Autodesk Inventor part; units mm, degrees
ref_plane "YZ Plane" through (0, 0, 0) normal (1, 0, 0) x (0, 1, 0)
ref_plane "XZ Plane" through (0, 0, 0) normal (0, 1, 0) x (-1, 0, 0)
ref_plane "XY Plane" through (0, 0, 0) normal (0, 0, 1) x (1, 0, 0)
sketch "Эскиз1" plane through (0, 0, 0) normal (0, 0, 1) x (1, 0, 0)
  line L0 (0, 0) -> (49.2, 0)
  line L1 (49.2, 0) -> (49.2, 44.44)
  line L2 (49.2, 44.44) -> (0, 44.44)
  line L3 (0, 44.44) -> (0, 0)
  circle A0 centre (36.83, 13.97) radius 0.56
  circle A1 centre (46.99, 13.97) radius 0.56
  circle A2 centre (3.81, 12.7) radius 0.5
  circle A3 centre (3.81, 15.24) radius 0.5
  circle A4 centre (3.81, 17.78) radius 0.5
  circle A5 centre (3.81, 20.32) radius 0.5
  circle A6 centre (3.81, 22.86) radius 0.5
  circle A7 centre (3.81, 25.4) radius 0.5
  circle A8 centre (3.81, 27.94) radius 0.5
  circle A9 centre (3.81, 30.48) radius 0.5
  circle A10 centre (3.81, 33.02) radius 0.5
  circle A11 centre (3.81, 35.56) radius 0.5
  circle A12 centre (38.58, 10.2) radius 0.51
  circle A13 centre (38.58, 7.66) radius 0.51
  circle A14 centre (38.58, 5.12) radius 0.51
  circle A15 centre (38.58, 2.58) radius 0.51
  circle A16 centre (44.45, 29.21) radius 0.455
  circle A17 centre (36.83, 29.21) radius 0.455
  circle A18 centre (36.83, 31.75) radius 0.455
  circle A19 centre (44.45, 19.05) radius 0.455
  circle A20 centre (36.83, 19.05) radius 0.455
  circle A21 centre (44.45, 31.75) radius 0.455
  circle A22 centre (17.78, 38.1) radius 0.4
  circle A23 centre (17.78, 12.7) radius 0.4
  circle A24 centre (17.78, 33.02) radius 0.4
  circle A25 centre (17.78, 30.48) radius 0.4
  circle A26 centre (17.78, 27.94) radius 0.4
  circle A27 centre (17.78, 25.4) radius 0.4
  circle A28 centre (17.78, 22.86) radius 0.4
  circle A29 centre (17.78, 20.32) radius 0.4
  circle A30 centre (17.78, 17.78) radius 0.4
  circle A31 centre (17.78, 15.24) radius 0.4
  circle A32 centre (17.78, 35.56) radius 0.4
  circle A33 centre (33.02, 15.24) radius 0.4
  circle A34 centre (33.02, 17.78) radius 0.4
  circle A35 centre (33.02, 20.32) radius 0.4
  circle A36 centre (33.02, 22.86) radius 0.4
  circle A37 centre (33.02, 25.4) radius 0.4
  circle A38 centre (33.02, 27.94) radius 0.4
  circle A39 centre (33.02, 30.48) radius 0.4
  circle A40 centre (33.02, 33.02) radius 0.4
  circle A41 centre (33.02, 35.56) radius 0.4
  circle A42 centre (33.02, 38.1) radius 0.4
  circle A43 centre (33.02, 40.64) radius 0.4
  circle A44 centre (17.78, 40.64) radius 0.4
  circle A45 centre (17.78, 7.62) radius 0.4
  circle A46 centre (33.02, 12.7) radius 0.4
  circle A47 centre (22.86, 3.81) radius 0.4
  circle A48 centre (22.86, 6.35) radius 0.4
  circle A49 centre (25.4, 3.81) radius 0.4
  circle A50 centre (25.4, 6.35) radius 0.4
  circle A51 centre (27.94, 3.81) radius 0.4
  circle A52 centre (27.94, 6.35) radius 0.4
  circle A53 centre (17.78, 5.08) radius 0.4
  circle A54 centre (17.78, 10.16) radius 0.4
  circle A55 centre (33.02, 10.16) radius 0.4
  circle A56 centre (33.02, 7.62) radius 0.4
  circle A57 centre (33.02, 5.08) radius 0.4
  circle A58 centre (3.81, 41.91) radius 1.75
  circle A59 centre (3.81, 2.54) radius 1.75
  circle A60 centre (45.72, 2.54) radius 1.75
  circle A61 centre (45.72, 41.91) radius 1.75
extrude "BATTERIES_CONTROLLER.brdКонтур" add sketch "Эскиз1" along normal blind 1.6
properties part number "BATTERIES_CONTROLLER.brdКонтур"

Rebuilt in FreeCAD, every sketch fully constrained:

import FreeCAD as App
import Part
import Sketcher

V = App.Vector
Q = App.Units.Quantity

doc = App.newDocument("Part")
body = doc.addObject("PartDesign::Body", "Body")

# Sketch on XY plane
sketch1 = body.newObject("Sketcher::SketchObject", "Sketch")
sketch1.AttachmentSupport = (doc.getObject("XY_Plane"), [""])
sketch1.MapMode = "FlatFace"
sketch1.addGeometry(Part.LineSegment(V(0, 44.44, 0), V(0, 0, 0)), False)
sketch1.addGeometry(Part.LineSegment(V(0, 0, 0), V(49.2, 0, 0)), False)
sketch1.addGeometry(Part.LineSegment(V(49.2, 0, 0), V(49.2, 44.44, 0)), False)
sketch1.addGeometry(Part.LineSegment(V(49.2, 44.44, 0), V(0, 44.44, 0)), False)
sketch1.addGeometry(Part.Circle(V(3.81, 2.54, 0), V(0, 0, 1), 1.75), False)
sketch1.addGeometry(Part.Circle(V(17.78, 5.08, 0), V(0, 0, 1), 0.4), False)
sketch1.addGeometry(Part.Circle(V(22.86, 3.81, 0), V(0, 0, 1), 0.4), False)
sketch1.addGeometry(Part.Circle(V(17.78, 7.62, 0), V(0, 0, 1), 0.4), False)
sketch1.addGeometry(Part.Circle(V(17.78, 10.16, 0), V(0, 0, 1), 0.4), False)
sketch1.addGeometry(Part.Circle(V(22.86, 6.35, 0), V(0, 0, 1), 0.4), False)
sketch1.addGeometry(Part.Circle(V(3.81, 12.7, 0), V(0, 0, 1), 0.5), False)
sketch1.addGeometry(Part.Circle(V(3.81, 15.24, 0), V(0, 0, 1), 0.5), False)
sketch1.addGeometry(Part.Circle(V(3.81, 17.78, 0), V(0, 0, 1), 0.5), False)
sketch1.addGeometry(Part.Circle(V(3.81, 20.32, 0), V(0, 0, 1), 0.5), False)
sketch1.addGeometry(Part.Circle(V(17.78, 12.7, 0), V(0, 0, 1), 0.4), False)
sketch1.addGeometry(Part.Circle(V(17.78, 15.24, 0), V(0, 0, 1), 0.4), False)
sketch1.addGeometry(Part.Circle(V(17.78, 17.78, 0), V(0, 0, 1), 0.4), False)
sketch1.addGeometry(Part.Circle(V(17.78, 20.32, 0), V(0, 0, 1), 0.4), False)
sketch1.addGeometry(Part.Circle(V(25.4, 3.81, 0), V(0, 0, 1), 0.4), False)
sketch1.addGeometry(Part.Circle(V(27.94, 3.81, 0), V(0, 0, 1), 0.4), False)
sketch1.addGeometry(Part.Circle(V(33.02, 5.08, 0), V(0, 0, 1), 0.4), False)
sketch1.addGeometry(Part.Circle(V(25.4, 6.35, 0), V(0, 0, 1), 0.4), False)
sketch1.addGeometry(Part.Circle(V(27.94, 6.35, 0), V(0, 0, 1), 0.4), False)
sketch1.addGeometry(Part.Circle(V(33.02, 7.62, 0), V(0, 0, 1), 0.4), False)
sketch1.addGeometry(Part.Circle(V(33.02, 10.16, 0), V(0, 0, 1), 0.4), False)
sketch1.addGeometry(Part.Circle(V(38.58, 2.58, 0), V(0, 0, 1), 0.51), False)
sketch1.addGeometry(Part.Circle(V(38.58, 5.12, 0), V(0, 0, 1), 0.51), False)
sketch1.addGeometry(Part.Circle(V(45.72, 2.54, 0), V(0, 0, 1), 1.75), False)
sketch1.addGeometry(Part.Circle(V(38.58, 7.66, 0), V(0, 0, 1), 0.51), False)
sketch1.addGeometry(Part.Circle(V(38.58, 10.2, 0), V(0, 0, 1), 0.51), False)
sketch1.addGeometry(Part.Circle(V(33.02, 12.7, 0), V(0, 0, 1), 0.4), False)
sketch1.addGeometry(Part.Circle(V(33.02, 15.24, 0), V(0, 0, 1), 0.4), False)
sketch1.addGeometry(Part.Circle(V(36.83, 13.97, 0), V(0, 0, 1), 0.56), False)
sketch1.addGeometry(Part.Circle(V(33.02, 17.78, 0), V(0, 0, 1), 0.4), False)
sketch1.addGeometry(Part.Circle(V(36.83, 19.05, 0), V(0, 0, 1), 0.46), False)
sketch1.addGeometry(Part.Circle(V(33.02, 20.32, 0), V(0, 0, 1), 0.4), False)
sketch1.addGeometry(Part.Circle(V(46.99, 13.97, 0), V(0, 0, 1), 0.56), False)
sketch1.addGeometry(Part.Circle(V(44.45, 19.05, 0), V(0, 0, 1), 0.46), False)
sketch1.addGeometry(Part.Circle(V(3.81, 22.86, 0), V(0, 0, 1), 0.5), False)
sketch1.addGeometry(Part.Circle(V(3.81, 25.4, 0), V(0, 0, 1), 0.5), False)
sketch1.addGeometry(Part.Circle(V(3.81, 27.94, 0), V(0, 0, 1), 0.5), False)
sketch1.addGeometry(Part.Circle(V(3.81, 30.48, 0), V(0, 0, 1), 0.5), False)
sketch1.addGeometry(Part.Circle(V(3.81, 33.02, 0), V(0, 0, 1), 0.5), False)
sketch1.addGeometry(Part.Circle(V(17.78, 22.86, 0), V(0, 0, 1), 0.4), False)
sketch1.addGeometry(Part.Circle(V(17.78, 25.4, 0), V(0, 0, 1), 0.4), False)
sketch1.addGeometry(Part.Circle(V(17.78, 27.94, 0), V(0, 0, 1), 0.4), False)
sketch1.addGeometry(Part.Circle(V(17.78, 30.48, 0), V(0, 0, 1), 0.4), False)
sketch1.addGeometry(Part.Circle(V(17.78, 33.02, 0), V(0, 0, 1), 0.4), False)
sketch1.addGeometry(Part.Circle(V(3.81, 35.56, 0), V(0, 0, 1), 0.5), False)
sketch1.addGeometry(Part.Circle(V(3.81, 41.91, 0), V(0, 0, 1), 1.75), False)
sketch1.addGeometry(Part.Circle(V(17.78, 35.56, 0), V(0, 0, 1), 0.4), False)
sketch1.addGeometry(Part.Circle(V(17.78, 38.1, 0), V(0, 0, 1), 0.4), False)
sketch1.addGeometry(Part.Circle(V(17.78, 40.64, 0), V(0, 0, 1), 0.4), False)
sketch1.addGeometry(Part.Circle(V(33.02, 22.86, 0), V(0, 0, 1), 0.4), False)
sketch1.addGeometry(Part.Circle(V(33.02, 25.4, 0), V(0, 0, 1), 0.4), False)
sketch1.addGeometry(Part.Circle(V(33.02, 27.94, 0), V(0, 0, 1), 0.4), False)
sketch1.addGeometry(Part.Circle(V(33.02, 30.48, 0), V(0, 0, 1), 0.4), False)
sketch1.addGeometry(Part.Circle(V(36.83, 29.21, 0), V(0, 0, 1), 0.46), False)
sketch1.addGeometry(Part.Circle(V(33.02, 33.02, 0), V(0, 0, 1), 0.4), False)
sketch1.addGeometry(Part.Circle(V(36.83, 31.75, 0), V(0, 0, 1), 0.46), False)
sketch1.addGeometry(Part.Circle(V(44.45, 29.21, 0), V(0, 0, 1), 0.46), False)
sketch1.addGeometry(Part.Circle(V(44.45, 31.75, 0), V(0, 0, 1), 0.46), False)
sketch1.addGeometry(Part.Circle(V(33.02, 35.56, 0), V(0, 0, 1), 0.4), False)
sketch1.addGeometry(Part.Circle(V(33.02, 38.1, 0), V(0, 0, 1), 0.4), False)
sketch1.addGeometry(Part.Circle(V(33.02, 40.64, 0), V(0, 0, 1), 0.4), False)
sketch1.addGeometry(Part.Circle(V(45.72, 41.91, 0), V(0, 0, 1), 1.75), False)
sketch1.addConstraint(Sketcher.Constraint("Coincident", 0, 2, 1, 1))
sketch1.addConstraint(Sketcher.Constraint("Coincident", 1, 2, 2, 1))
sketch1.addConstraint(Sketcher.Constraint("Coincident", 2, 2, 3, 1))
sketch1.addConstraint(Sketcher.Constraint("Coincident", 3, 2, 0, 1))
sketch1.addConstraint(Sketcher.Constraint("Vertical", 0))
sketch1.addConstraint(Sketcher.Constraint("Horizontal", 1))
sketch1.addConstraint(Sketcher.Constraint("Vertical", 2))
sketch1.addConstraint(Sketcher.Constraint("Horizontal", 3))
sketch1.addConstraint(Sketcher.Constraint("Coincident", 0, 2, -1, 1))
sketch1.addConstraint(Sketcher.Constraint("Equal", 5, 6))
sketch1.addConstraint(Sketcher.Constraint("Equal", 6, 7))
sketch1.addConstraint(Sketcher.Constraint("Equal", 7, 8))
sketch1.addConstraint(Sketcher.Constraint("Equal", 8, 9))
sketch1.addConstraint(Sketcher.Constraint("Equal", 10, 11))
sketch1.addConstraint(Sketcher.Constraint("Equal", 11, 12))
sketch1.addConstraint(Sketcher.Constraint("Equal", 12, 13))
sketch1.addConstraint(Sketcher.Constraint("Equal", 9, 14))
sketch1.addConstraint(Sketcher.Constraint("Equal", 14, 15))
sketch1.addConstraint(Sketcher.Constraint("Equal", 15, 16))
sketch1.addConstraint(Sketcher.Constraint("Equal", 16, 17))
sketch1.addConstraint(Sketcher.Constraint("Equal", 17, 18))
sketch1.addConstraint(Sketcher.Constraint("Equal", 18, 19))
sketch1.addConstraint(Sketcher.Constraint("Equal", 19, 20))
sketch1.addConstraint(Sketcher.Constraint("Equal", 20, 21))
sketch1.addConstraint(Sketcher.Constraint("Equal", 21, 22))
sketch1.addConstraint(Sketcher.Constraint("Equal", 22, 23))
sketch1.addConstraint(Sketcher.Constraint("Equal", 23, 24))
sketch1.addConstraint(Sketcher.Constraint("Equal", 25, 26))
sketch1.addConstraint(Sketcher.Constraint("Equal", 4, 27))
sketch1.addConstraint(Sketcher.Constraint("Equal", 26, 28))
sketch1.addConstraint(Sketcher.Constraint("Equal", 28, 29))
sketch1.addConstraint(Sketcher.Constraint("Equal", 24, 30))
sketch1.addConstraint(Sketcher.Constraint("Equal", 30, 31))
sketch1.addConstraint(Sketcher.Constraint("Equal", 31, 33))
sketch1.addConstraint(Sketcher.Constraint("Equal", 33, 35))
sketch1.addConstraint(Sketcher.Constraint("Equal", 32, 36))
sketch1.addConstraint(Sketcher.Constraint("Equal", 34, 37))
sketch1.addConstraint(Sketcher.Constraint("Equal", 13, 38))
sketch1.addConstraint(Sketcher.Constraint("Equal", 38, 39))
sketch1.addConstraint(Sketcher.Constraint("Equal", 39, 40))
sketch1.addConstraint(Sketcher.Constraint("Equal", 40, 41))
sketch1.addConstraint(Sketcher.Constraint("Equal", 41, 42))
sketch1.addConstraint(Sketcher.Constraint("Equal", 35, 43))
sketch1.addConstraint(Sketcher.Constraint("Equal", 43, 44))
sketch1.addConstraint(Sketcher.Constraint("Equal", 44, 45))
sketch1.addConstraint(Sketcher.Constraint("Equal", 45, 46))
sketch1.addConstraint(Sketcher.Constraint("Equal", 46, 47))
sketch1.addConstraint(Sketcher.Constraint("Equal", 42, 48))
sketch1.addConstraint(Sketcher.Constraint("Equal", 27, 49))
sketch1.addConstraint(Sketcher.Constraint("Equal", 47, 50))
sketch1.addConstraint(Sketcher.Constraint("Equal", 50, 51))
sketch1.addConstraint(Sketcher.Constraint("Equal", 51, 52))
sketch1.addConstraint(Sketcher.Constraint("Equal", 52, 53))
sketch1.addConstraint(Sketcher.Constraint("Equal", 53, 54))
sketch1.addConstraint(Sketcher.Constraint("Equal", 54, 55))
sketch1.addConstraint(Sketcher.Constraint("Equal", 55, 56))
sketch1.addConstraint(Sketcher.Constraint("Equal", 37, 57))
sketch1.addConstraint(Sketcher.Constraint("Equal", 56, 58))
sketch1.addConstraint(Sketcher.Constraint("Equal", 57, 59))
sketch1.addConstraint(Sketcher.Constraint("Equal", 59, 60))
sketch1.addConstraint(Sketcher.Constraint("Equal", 60, 61))
sketch1.addConstraint(Sketcher.Constraint("Equal", 58, 62))
sketch1.addConstraint(Sketcher.Constraint("Equal", 62, 63))
sketch1.addConstraint(Sketcher.Constraint("Equal", 63, 64))
sketch1.addConstraint(Sketcher.Constraint("Equal", 49, 65))
sketch1.addConstraint(Sketcher.Constraint("Horizontal", 10, 3, 14, 3))
sketch1.addConstraint(Sketcher.Constraint("Horizontal", 11, 3, 15, 3))
sketch1.addConstraint(Sketcher.Constraint("Horizontal", 12, 3, 16, 3))
sketch1.addConstraint(Sketcher.Constraint("Horizontal", 13, 3, 17, 3))
sketch1.addConstraint(Sketcher.Constraint("Horizontal", 6, 3, 18, 3))
sketch1.addConstraint(Sketcher.Constraint("Horizontal", 18, 3, 19, 3))
sketch1.addConstraint(Sketcher.Constraint("Horizontal", 5, 3, 20, 3))
sketch1.addConstraint(Sketcher.Constraint("Horizontal", 9, 3, 21, 3))
sketch1.addConstraint(Sketcher.Constraint("Horizontal", 21, 3, 22, 3))
sketch1.addConstraint(Sketcher.Constraint("Horizontal", 7, 3, 23, 3))
sketch1.addConstraint(Sketcher.Constraint("Horizontal", 8, 3, 24, 3))
sketch1.addConstraint(Sketcher.Constraint("Horizontal", 4, 3, 27, 3))
sketch1.addConstraint(Sketcher.Constraint("Horizontal", 14, 3, 30, 3))
sketch1.addConstraint(Sketcher.Constraint("Horizontal", 15, 3, 31, 3))
sketch1.addConstraint(Sketcher.Constraint("Horizontal", 16, 3, 33, 3))
sketch1.addConstraint(Sketcher.Constraint("Horizontal", 17, 3, 35, 3))
sketch1.addConstraint(Sketcher.Constraint("Horizontal", 32, 3, 36, 3))
sketch1.addConstraint(Sketcher.Constraint("Horizontal", 34, 3, 37, 3))
sketch1.addConstraint(Sketcher.Constraint("Horizontal", 38, 3, 43, 3))
sketch1.addConstraint(Sketcher.Constraint("Horizontal", 39, 3, 44, 3))
sketch1.addConstraint(Sketcher.Constraint("Horizontal", 40, 3, 45, 3))
sketch1.addConstraint(Sketcher.Constraint("Horizontal", 41, 3, 46, 3))
sketch1.addConstraint(Sketcher.Constraint("Horizontal", 42, 3, 47, 3))
sketch1.addConstraint(Sketcher.Constraint("Horizontal", 48, 3, 50, 3))
sketch1.addConstraint(Sketcher.Constraint("Horizontal", 43, 3, 53, 3))
sketch1.addConstraint(Sketcher.Constraint("Horizontal", 44, 3, 54, 3))
sketch1.addConstraint(Sketcher.Constraint("Horizontal", 45, 3, 55, 3))
sketch1.addConstraint(Sketcher.Constraint("Horizontal", 46, 3, 56, 3))
sketch1.addConstraint(Sketcher.Constraint("Horizontal", 47, 3, 58, 3))
sketch1.addConstraint(Sketcher.Constraint("Horizontal", 57, 3, 60, 3))
sketch1.addConstraint(Sketcher.Constraint("Horizontal", 59, 3, 61, 3))
sketch1.addConstraint(Sketcher.Constraint("Horizontal", 50, 3, 62, 3))
sketch1.addConstraint(Sketcher.Constraint("Horizontal", 51, 3, 63, 3))
sketch1.addConstraint(Sketcher.Constraint("Horizontal", 52, 3, 64, 3))
sketch1.addConstraint(Sketcher.Constraint("Horizontal", 49, 3, 65, 3))
sketch1.addConstraint(Sketcher.Constraint("Vertical", 5, 3, 7, 3))
sketch1.addConstraint(Sketcher.Constraint("Vertical", 7, 3, 8, 3))
sketch1.addConstraint(Sketcher.Constraint("Vertical", 6, 3, 9, 3))
sketch1.addConstraint(Sketcher.Constraint("Vertical", 4, 3, 10, 3))
sketch1.addConstraint(Sketcher.Constraint("Vertical", 10, 3, 11, 3))
sketch1.addConstraint(Sketcher.Constraint("Vertical", 11, 3, 12, 3))
sketch1.addConstraint(Sketcher.Constraint("Vertical", 12, 3, 13, 3))
sketch1.addConstraint(Sketcher.Constraint("Vertical", 8, 3, 14, 3))
sketch1.addConstraint(Sketcher.Constraint("Vertical", 14, 3, 15, 3))
sketch1.addConstraint(Sketcher.Constraint("Vertical", 15, 3, 16, 3))
sketch1.addConstraint(Sketcher.Constraint("Vertical", 16, 3, 17, 3))
sketch1.addConstraint(Sketcher.Constraint("Vertical", 18, 3, 21, 3))
sketch1.addConstraint(Sketcher.Constraint("Vertical", 19, 3, 22, 3))
sketch1.addConstraint(Sketcher.Constraint("Vertical", 20, 3, 23, 3))
sketch1.addConstraint(Sketcher.Constraint("Vertical", 23, 3, 24, 3))
sketch1.addConstraint(Sketcher.Constraint("Vertical", 25, 3, 26, 3))
sketch1.addConstraint(Sketcher.Constraint("Vertical", 26, 3, 28, 3))
sketch1.addConstraint(Sketcher.Constraint("Vertical", 28, 3, 29, 3))
sketch1.addConstraint(Sketcher.Constraint("Vertical", 24, 3, 30, 3))
sketch1.addConstraint(Sketcher.Constraint("Vertical", 30, 3, 31, 3))
sketch1.addConstraint(Sketcher.Constraint("Vertical", 31, 3, 33, 3))
sketch1.addConstraint(Sketcher.Constraint("Vertical", 32, 3, 34, 3))
sketch1.addConstraint(Sketcher.Constraint("Vertical", 33, 3, 35, 3))
sketch1.addConstraint(Sketcher.Constraint("Vertical", 13, 3, 38, 3))
sketch1.addConstraint(Sketcher.Constraint("Vertical", 38, 3, 39, 3))
sketch1.addConstraint(Sketcher.Constraint("Vertical", 39, 3, 40, 3))
sketch1.addConstraint(Sketcher.Constraint("Vertical", 40, 3, 41, 3))
sketch1.addConstraint(Sketcher.Constraint("Vertical", 41, 3, 42, 3))
sketch1.addConstraint(Sketcher.Constraint("Vertical", 17, 3, 43, 3))
sketch1.addConstraint(Sketcher.Constraint("Vertical", 43, 3, 44, 3))
sketch1.addConstraint(Sketcher.Constraint("Vertical", 44, 3, 45, 3))
sketch1.addConstraint(Sketcher.Constraint("Vertical", 45, 3, 46, 3))
sketch1.addConstraint(Sketcher.Constraint("Vertical", 46, 3, 47, 3))
sketch1.addConstraint(Sketcher.Constraint("Vertical", 42, 3, 48, 3))
sketch1.addConstraint(Sketcher.Constraint("Vertical", 48, 3, 49, 3))
sketch1.addConstraint(Sketcher.Constraint("Vertical", 47, 3, 50, 3))
sketch1.addConstraint(Sketcher.Constraint("Vertical", 50, 3, 51, 3))
sketch1.addConstraint(Sketcher.Constraint("Vertical", 51, 3, 52, 3))
sketch1.addConstraint(Sketcher.Constraint("Vertical", 35, 3, 53, 3))
sketch1.addConstraint(Sketcher.Constraint("Vertical", 53, 3, 54, 3))
sketch1.addConstraint(Sketcher.Constraint("Vertical", 54, 3, 55, 3))
sketch1.addConstraint(Sketcher.Constraint("Vertical", 55, 3, 56, 3))
sketch1.addConstraint(Sketcher.Constraint("Vertical", 34, 3, 57, 3))
sketch1.addConstraint(Sketcher.Constraint("Vertical", 56, 3, 58, 3))
sketch1.addConstraint(Sketcher.Constraint("Vertical", 57, 3, 59, 3))
sketch1.addConstraint(Sketcher.Constraint("Vertical", 37, 3, 60, 3))
sketch1.addConstraint(Sketcher.Constraint("Vertical", 60, 3, 61, 3))
sketch1.addConstraint(Sketcher.Constraint("Vertical", 58, 3, 62, 3))
sketch1.addConstraint(Sketcher.Constraint("Vertical", 62, 3, 63, 3))
sketch1.addConstraint(Sketcher.Constraint("Vertical", 63, 3, 64, 3))
sketch1.addConstraint(Sketcher.Constraint("Vertical", 27, 3, 65, 3))
sketch1.addConstraint(Sketcher.Constraint("DistanceX", -1, 1, 18, 3, Q("1 in")))
sketch1.addConstraint(Sketcher.Constraint("DistanceY", -1, 1, 39, 3, Q("1 in")))
sketch1.addConstraint(Sketcher.Constraint("Diameter", 4, Q("0.1378 in")))
sketch1.addConstraint(Sketcher.Constraint("Diameter", 5, Q("0.0315 in")))
sketch1.addConstraint(Sketcher.Constraint("Diameter", 32, Q("0.0441 in")))
sketch1.addConstraint(Sketcher.Constraint("DistanceY", -1, 1, 4, 3, Q("0.1 in")))
sketch1.addConstraint(Sketcher.Constraint("DistanceX", -1, 1, 5, 3, Q("0.7 in")))
sketch1.addConstraint(Sketcher.Constraint("DistanceY", -1, 1, 5, 3, Q("0.2 in")))
sketch1.addConstraint(Sketcher.Constraint("DistanceX", -1, 1, 6, 3, Q("0.9 in")))
sketch1.addConstraint(Sketcher.Constraint("DistanceY", -1, 1, 7, 3, Q("0.3 in")))
sketch1.addConstraint(Sketcher.Constraint("DistanceY", -1, 1, 8, 3, Q("0.4 in")))
sketch1.addConstraint(Sketcher.Constraint("DistanceY", -1, 1, 10, 3, Q("0.5 in")))
sketch1.addConstraint(Sketcher.Constraint("DistanceY", -1, 1, 11, 3, Q("0.6 in")))
sketch1.addConstraint(Sketcher.Constraint("DistanceY", -1, 1, 12, 3, Q("0.7 in")))
sketch1.addConstraint(Sketcher.Constraint("DistanceY", -1, 1, 13, 3, Q("0.8 in")))
sketch1.addConstraint(Sketcher.Constraint("DistanceX", -1, 1, 19, 3, Q("1.1 in")))
sketch1.addConstraint(Sketcher.Constraint("DistanceX", -1, 1, 20, 3, Q("1.3 in")))
sketch1.addConstraint(Sketcher.Constraint("DistanceX", -1, 1, 27, 3, Q("1.8 in")))
sketch1.addConstraint(Sketcher.Constraint("DistanceY", -1, 1, 38, 3, Q("0.9 in")))
sketch1.addConstraint(Sketcher.Constraint("DistanceY", -1, 1, 40, 3, Q("1.1 in")))
sketch1.addConstraint(Sketcher.Constraint("DistanceY", -1, 1, 41, 3, Q("1.2 in")))
sketch1.addConstraint(Sketcher.Constraint("DistanceY", -1, 1, 42, 3, Q("1.3 in")))
sketch1.addConstraint(Sketcher.Constraint("DistanceY", -1, 1, 48, 3, Q("1.4 in")))
sketch1.addConstraint(Sketcher.Constraint("DistanceY", -1, 1, 51, 3, Q("1.5 in")))
sketch1.addConstraint(Sketcher.Constraint("DistanceY", -1, 1, 52, 3, Q("1.6 in")))
sketch1.addConstraint(Sketcher.Constraint("Diameter", 10, 1.0))
sketch1.addConstraint(Sketcher.Constraint("Diameter", 25, 1.02))
sketch1.addConstraint(Sketcher.Constraint("Diameter", 34, 0.91))
sketch1.addConstraint(Sketcher.Constraint("DistanceX", 1, 1, 1, 2, Q("1.937 in")))
sketch1.addConstraint(Sketcher.Constraint("DistanceX", -1, 1, 4, 3, Q("0.15 in")))
sketch1.addConstraint(Sketcher.Constraint("DistanceY", -1, 1, 6, 3, Q("0.15 in")))
sketch1.addConstraint(Sketcher.Constraint("DistanceY", -1, 1, 9, 3, Q("0.25 in")))
sketch1.addConstraint(Sketcher.Constraint("DistanceX", -1, 1, 32, 3, Q("1.45 in")))
sketch1.addConstraint(Sketcher.Constraint("DistanceY", -1, 1, 32, 3, Q("0.55 in")))
sketch1.addConstraint(Sketcher.Constraint("DistanceY", -1, 1, 34, 3, Q("0.75 in")))
sketch1.addConstraint(Sketcher.Constraint("DistanceX", -1, 1, 36, 3, Q("1.85 in")))
sketch1.addConstraint(Sketcher.Constraint("DistanceX", -1, 1, 37, 3, Q("1.75 in")))
sketch1.addConstraint(Sketcher.Constraint("DistanceY", -1, 1, 49, 3, Q("1.65 in")))
sketch1.addConstraint(Sketcher.Constraint("DistanceY", -1, 1, 57, 3, Q("1.15 in")))
sketch1.addConstraint(Sketcher.Constraint("DistanceY", -1, 1, 59, 3, Q("1.25 in")))
sketch1.addConstraint(Sketcher.Constraint("DistanceY", 0, 2, 0, 1, Q("1.7496 in")))
sketch1.addConstraint(Sketcher.Constraint("DistanceX", -1, 1, 25, 3, Q("1.5189 in")))
sketch1.addConstraint(Sketcher.Constraint("DistanceY", -1, 1, 25, 3, 2.58))
sketch1.addConstraint(Sketcher.Constraint("DistanceY", -1, 1, 26, 3, 5.12))
sketch1.addConstraint(Sketcher.Constraint("DistanceY", -1, 1, 28, 3, 7.66))
sketch1.addConstraint(Sketcher.Constraint("DistanceY", -1, 1, 29, 3, 10.2))
pad1 = body.newObject("PartDesign::Pad", "Pad")
pad1.Profile = sketch1
pad1.Length = Q("0.0629921 in")

doc.recompute()
